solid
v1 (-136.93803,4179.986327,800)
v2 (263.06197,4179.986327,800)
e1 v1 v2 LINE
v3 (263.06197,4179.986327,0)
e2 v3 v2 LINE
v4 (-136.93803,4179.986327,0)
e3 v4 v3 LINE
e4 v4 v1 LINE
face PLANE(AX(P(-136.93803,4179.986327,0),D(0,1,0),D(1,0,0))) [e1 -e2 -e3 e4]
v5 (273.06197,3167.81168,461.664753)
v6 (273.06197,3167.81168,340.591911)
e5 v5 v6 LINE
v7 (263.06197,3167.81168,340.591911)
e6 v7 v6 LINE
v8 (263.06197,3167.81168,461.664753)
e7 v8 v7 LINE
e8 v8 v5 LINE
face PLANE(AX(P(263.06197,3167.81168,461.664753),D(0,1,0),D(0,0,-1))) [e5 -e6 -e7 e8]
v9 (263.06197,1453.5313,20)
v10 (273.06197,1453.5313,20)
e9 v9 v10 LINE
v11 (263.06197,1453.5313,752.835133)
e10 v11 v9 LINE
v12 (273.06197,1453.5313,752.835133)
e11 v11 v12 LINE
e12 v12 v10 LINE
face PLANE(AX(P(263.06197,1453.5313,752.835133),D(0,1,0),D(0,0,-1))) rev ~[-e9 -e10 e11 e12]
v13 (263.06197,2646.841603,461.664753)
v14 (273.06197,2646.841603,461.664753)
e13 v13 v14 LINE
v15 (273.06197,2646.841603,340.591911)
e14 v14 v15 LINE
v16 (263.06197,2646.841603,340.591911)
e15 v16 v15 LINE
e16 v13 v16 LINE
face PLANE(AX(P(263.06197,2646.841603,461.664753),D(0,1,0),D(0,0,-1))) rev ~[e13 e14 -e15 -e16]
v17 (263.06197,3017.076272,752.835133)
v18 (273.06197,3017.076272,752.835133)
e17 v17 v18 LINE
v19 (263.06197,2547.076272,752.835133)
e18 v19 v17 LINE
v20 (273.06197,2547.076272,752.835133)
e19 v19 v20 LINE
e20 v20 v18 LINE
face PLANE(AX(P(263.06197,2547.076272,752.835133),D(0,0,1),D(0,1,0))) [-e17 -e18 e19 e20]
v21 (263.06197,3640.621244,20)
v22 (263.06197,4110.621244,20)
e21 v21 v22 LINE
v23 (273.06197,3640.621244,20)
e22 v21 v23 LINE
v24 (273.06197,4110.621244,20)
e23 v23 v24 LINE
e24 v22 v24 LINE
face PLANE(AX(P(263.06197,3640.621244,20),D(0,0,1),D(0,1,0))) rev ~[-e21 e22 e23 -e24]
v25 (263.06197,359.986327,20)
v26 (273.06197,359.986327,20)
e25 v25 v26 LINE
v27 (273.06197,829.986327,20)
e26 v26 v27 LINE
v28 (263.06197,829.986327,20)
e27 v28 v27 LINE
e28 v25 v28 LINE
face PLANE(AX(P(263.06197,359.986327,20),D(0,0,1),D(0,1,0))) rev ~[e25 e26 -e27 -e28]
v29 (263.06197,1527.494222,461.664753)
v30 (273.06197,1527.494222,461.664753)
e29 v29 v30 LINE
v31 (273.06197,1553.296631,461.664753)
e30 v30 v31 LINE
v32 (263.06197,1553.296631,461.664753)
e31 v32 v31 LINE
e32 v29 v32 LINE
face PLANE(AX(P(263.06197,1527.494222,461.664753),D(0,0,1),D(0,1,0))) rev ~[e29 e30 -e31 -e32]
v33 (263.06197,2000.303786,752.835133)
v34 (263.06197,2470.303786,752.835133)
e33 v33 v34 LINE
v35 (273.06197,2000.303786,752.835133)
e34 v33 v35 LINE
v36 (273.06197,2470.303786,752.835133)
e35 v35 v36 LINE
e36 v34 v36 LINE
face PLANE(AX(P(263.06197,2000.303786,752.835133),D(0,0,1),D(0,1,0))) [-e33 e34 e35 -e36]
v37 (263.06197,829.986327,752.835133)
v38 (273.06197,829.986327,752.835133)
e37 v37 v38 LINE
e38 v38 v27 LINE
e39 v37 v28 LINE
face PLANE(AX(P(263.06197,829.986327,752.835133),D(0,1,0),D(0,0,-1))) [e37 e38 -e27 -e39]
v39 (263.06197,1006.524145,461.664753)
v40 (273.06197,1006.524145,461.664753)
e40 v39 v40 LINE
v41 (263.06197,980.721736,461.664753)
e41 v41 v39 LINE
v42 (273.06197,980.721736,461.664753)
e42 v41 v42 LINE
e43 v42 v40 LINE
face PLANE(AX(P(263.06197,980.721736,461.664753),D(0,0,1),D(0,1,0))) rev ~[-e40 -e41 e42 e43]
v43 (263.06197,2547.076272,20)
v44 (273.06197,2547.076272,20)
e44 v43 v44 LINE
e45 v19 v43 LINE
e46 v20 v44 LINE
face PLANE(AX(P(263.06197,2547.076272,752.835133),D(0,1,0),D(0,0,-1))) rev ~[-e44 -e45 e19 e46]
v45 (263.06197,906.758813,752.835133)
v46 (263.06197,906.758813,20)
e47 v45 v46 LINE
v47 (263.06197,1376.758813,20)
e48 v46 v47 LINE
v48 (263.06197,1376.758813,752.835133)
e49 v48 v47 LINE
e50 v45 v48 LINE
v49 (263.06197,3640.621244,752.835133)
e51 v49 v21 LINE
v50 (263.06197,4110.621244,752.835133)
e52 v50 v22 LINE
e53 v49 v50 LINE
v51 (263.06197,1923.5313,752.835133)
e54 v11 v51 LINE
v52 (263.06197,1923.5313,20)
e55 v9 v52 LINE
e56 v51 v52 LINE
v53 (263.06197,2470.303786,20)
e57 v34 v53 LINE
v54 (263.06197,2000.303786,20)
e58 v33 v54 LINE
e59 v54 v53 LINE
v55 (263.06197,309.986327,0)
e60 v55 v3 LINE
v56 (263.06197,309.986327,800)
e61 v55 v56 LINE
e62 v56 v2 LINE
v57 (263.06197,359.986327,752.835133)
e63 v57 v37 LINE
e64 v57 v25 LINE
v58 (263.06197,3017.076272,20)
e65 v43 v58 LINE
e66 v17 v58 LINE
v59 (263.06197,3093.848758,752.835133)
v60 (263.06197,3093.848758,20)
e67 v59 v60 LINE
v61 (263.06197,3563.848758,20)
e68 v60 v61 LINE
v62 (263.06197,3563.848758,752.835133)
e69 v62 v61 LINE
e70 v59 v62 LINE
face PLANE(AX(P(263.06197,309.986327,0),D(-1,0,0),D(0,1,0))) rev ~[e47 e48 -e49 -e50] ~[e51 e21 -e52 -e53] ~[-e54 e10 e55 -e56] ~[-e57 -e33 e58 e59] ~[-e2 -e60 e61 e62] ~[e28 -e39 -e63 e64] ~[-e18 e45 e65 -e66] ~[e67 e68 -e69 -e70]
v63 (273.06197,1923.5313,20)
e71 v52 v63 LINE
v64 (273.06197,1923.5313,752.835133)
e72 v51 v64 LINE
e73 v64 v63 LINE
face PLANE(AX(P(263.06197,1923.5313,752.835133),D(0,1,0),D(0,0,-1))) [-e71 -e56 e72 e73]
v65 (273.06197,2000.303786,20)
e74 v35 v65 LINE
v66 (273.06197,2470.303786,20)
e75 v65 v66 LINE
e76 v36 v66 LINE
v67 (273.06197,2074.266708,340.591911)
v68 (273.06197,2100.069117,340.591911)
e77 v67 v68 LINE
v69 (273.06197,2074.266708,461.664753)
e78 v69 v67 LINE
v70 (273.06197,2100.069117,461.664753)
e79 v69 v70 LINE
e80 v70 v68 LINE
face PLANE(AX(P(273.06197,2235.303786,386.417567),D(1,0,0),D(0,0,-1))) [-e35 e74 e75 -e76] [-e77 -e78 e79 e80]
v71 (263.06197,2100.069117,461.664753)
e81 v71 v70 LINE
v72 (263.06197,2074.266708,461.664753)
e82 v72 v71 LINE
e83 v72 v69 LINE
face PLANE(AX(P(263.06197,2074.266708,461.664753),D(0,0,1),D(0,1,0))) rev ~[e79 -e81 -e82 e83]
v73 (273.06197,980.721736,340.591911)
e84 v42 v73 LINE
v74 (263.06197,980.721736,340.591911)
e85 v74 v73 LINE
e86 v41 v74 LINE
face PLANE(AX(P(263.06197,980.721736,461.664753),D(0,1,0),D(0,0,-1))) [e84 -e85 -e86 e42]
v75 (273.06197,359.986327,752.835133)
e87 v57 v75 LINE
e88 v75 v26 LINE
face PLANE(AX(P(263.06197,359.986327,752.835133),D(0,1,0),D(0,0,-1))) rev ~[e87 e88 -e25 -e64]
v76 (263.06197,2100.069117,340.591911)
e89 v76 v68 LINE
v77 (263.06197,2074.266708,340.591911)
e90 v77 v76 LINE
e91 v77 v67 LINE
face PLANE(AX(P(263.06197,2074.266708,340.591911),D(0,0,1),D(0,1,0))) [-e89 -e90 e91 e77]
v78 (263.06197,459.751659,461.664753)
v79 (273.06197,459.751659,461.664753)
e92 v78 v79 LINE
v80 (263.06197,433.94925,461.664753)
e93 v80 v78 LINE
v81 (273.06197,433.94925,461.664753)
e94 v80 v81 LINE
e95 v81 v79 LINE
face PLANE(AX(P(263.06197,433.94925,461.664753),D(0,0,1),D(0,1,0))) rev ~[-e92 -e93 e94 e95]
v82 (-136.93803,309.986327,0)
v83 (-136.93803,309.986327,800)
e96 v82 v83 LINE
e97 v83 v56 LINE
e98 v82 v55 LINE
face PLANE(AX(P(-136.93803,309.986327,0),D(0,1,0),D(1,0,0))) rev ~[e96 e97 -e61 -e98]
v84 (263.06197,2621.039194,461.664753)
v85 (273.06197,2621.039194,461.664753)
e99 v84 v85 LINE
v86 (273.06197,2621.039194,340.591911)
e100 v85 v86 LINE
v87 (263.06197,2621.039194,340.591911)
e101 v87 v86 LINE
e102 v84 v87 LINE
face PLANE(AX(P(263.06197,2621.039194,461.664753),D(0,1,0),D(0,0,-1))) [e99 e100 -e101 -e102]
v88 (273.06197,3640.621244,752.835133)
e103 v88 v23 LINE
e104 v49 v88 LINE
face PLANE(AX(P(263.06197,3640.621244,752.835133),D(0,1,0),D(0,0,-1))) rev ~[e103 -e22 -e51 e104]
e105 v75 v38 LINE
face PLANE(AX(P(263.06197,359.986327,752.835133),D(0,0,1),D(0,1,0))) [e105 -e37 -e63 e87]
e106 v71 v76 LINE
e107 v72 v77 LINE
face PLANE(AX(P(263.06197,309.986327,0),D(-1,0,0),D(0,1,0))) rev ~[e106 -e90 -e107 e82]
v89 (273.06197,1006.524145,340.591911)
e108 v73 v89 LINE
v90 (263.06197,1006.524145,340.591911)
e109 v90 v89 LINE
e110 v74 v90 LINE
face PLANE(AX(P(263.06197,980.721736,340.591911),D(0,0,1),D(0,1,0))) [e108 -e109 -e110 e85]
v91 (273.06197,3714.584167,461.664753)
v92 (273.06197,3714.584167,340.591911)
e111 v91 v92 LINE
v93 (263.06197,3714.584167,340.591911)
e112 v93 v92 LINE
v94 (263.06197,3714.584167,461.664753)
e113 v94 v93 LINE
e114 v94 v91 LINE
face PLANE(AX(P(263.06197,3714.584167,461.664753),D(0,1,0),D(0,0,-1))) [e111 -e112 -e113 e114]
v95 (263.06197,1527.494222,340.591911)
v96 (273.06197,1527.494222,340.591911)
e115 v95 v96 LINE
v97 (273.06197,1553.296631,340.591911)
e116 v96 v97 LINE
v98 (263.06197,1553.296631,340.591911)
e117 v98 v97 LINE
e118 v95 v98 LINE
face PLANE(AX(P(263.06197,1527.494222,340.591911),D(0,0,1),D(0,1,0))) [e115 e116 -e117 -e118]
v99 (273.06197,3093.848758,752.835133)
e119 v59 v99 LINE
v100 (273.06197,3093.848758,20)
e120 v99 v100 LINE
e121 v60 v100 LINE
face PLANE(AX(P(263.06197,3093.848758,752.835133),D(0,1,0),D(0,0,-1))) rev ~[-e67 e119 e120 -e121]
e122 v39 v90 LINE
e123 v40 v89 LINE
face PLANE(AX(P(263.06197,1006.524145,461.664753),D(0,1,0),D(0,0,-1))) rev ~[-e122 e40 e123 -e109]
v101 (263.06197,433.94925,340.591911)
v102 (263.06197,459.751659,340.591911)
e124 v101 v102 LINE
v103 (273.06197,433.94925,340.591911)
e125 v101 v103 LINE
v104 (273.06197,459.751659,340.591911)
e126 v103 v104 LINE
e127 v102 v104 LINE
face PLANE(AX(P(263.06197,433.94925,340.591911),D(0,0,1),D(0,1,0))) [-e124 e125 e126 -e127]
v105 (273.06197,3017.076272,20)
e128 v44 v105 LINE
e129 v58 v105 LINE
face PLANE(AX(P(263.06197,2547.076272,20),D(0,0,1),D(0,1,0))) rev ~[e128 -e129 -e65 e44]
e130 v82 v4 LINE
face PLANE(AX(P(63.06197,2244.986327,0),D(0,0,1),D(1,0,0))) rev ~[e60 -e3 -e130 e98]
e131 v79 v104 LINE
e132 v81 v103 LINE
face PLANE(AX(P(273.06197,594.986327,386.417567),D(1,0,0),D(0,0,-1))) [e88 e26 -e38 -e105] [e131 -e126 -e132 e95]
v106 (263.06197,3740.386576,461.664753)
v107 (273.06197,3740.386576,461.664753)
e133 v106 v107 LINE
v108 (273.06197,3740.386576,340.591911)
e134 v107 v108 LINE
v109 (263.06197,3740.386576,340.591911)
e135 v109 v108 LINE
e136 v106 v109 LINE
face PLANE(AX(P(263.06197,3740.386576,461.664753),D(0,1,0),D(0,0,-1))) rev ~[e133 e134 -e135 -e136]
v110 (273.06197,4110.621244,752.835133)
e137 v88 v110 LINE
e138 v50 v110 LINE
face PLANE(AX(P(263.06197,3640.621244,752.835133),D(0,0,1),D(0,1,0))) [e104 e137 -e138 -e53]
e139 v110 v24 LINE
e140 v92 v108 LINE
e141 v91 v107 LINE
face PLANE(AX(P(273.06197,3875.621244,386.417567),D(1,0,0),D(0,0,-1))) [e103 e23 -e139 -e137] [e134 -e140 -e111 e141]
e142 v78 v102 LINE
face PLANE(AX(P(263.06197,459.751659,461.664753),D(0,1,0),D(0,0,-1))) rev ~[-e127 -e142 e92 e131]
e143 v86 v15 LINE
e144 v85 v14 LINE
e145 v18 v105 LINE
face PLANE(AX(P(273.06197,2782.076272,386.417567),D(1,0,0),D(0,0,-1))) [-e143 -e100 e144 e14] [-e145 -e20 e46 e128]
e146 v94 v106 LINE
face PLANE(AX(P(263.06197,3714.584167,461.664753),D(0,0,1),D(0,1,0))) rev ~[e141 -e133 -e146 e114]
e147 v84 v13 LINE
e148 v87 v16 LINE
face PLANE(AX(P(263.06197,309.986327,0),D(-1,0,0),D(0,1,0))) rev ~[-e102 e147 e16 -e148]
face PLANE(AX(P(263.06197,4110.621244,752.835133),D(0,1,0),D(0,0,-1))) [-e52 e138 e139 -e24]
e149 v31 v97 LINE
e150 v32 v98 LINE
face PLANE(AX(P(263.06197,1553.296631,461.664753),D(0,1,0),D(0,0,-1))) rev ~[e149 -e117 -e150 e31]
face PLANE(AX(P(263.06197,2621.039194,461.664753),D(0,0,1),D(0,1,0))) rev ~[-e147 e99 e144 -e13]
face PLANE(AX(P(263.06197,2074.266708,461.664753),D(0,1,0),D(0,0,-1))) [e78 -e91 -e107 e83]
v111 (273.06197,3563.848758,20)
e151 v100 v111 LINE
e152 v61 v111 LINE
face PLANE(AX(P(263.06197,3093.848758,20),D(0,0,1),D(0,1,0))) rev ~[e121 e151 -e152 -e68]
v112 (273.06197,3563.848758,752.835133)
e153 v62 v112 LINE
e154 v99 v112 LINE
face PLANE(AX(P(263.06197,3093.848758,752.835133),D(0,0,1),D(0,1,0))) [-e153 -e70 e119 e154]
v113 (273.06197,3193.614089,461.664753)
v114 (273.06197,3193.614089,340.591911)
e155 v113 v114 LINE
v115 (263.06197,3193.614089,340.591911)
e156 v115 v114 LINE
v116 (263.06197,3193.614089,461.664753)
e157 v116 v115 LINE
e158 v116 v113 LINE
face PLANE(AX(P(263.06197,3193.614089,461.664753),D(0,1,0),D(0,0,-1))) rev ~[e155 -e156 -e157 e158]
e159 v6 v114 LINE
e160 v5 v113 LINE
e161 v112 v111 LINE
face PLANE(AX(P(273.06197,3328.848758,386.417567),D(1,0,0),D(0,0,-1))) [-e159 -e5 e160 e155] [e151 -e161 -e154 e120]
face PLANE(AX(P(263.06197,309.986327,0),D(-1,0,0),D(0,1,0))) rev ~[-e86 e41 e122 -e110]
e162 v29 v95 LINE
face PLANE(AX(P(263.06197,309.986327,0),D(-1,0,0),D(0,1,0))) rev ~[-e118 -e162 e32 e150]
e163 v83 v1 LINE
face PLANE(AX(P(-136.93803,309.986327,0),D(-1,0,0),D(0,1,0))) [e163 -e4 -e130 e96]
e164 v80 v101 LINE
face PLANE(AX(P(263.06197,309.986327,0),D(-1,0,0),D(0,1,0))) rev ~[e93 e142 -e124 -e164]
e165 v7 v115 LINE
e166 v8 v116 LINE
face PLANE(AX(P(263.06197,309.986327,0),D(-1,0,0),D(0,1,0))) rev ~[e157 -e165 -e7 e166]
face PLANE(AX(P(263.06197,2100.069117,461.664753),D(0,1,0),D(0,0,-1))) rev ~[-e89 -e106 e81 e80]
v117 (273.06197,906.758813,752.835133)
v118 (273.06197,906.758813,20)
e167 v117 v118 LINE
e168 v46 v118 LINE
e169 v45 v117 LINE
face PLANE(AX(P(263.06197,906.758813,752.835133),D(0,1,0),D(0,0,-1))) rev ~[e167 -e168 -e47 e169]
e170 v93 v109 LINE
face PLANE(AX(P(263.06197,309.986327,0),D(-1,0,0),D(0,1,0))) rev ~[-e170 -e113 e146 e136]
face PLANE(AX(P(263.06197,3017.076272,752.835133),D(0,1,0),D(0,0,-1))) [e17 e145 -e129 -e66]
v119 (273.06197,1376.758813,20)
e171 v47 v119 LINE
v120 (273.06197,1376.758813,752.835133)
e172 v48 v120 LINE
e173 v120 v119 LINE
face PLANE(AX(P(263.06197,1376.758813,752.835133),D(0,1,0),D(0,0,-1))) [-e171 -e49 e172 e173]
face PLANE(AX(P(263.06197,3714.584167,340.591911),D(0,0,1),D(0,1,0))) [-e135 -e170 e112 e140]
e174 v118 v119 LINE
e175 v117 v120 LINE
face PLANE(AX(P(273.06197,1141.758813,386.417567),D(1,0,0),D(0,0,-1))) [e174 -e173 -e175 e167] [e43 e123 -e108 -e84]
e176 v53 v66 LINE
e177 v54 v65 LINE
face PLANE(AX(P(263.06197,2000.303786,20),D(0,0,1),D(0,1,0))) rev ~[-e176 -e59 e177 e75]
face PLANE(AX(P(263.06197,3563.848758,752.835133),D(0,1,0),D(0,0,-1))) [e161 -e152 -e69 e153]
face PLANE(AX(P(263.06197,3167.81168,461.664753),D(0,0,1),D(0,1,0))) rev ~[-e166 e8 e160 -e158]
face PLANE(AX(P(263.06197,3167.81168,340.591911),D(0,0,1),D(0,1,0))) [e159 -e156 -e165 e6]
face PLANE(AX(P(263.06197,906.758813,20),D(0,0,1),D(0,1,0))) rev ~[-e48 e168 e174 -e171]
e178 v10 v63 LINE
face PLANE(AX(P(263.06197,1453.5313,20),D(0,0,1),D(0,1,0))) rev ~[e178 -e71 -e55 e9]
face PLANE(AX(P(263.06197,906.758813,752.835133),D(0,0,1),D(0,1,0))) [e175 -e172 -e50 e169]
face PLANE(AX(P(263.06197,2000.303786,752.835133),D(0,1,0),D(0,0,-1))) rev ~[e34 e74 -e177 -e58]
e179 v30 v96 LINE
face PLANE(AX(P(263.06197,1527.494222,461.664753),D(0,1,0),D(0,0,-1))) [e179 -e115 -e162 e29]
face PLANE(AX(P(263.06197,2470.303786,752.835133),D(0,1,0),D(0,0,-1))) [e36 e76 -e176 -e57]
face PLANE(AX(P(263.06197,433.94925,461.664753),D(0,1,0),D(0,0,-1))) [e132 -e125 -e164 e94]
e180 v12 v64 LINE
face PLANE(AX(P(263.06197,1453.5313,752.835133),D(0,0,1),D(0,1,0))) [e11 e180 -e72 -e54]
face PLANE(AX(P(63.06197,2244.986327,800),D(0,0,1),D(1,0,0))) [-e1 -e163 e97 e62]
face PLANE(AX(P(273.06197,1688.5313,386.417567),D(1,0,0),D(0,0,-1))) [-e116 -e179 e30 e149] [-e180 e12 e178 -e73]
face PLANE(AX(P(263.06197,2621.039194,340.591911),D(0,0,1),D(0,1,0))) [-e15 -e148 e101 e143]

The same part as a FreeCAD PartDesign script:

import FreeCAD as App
import Part
import Sketcher
from FreeCAD import Vector


def add_polygon(sketch, points):
    """Adds a closed chain of lines whose ends are joined by coincident constraints."""
    first, n = sketch.GeometryCount, len(points)
    for a, b in zip(points, points[1:] + points[:1]):
        sketch.addGeometry(Part.LineSegment(App.Vector(*a, 0), App.Vector(*b, 0)), False)
    for i in range(n):
        sketch.addConstraint(Sketcher.Constraint("Coincident", first + i, 2, first + (i + 1) % n, 1))

doc = App.newDocument("Part")
body = doc.addObject("PartDesign::Body", "Body")

# Sketch on XY plane
sketch1 = body.newObject("Sketcher::SketchObject", "Sketch")
sketch1.AttachmentSupport = (doc.getObject("XY_Plane"), [""])
sketch1.MapMode = "FlatFace"
add_polygon(sketch1, [(-137, 4180), (-137, 310), (263, 310), (263, 4180)])  # lines 0-3
sketch1.addConstraint([
    Sketcher.Constraint("Vertical", 0),
    Sketcher.Constraint("Horizontal", 1),
    Sketcher.Constraint("Vertical", 2),
    Sketcher.Constraint("Horizontal", 3),
    Sketcher.Constraint("DistanceX", 1, 1, 1, 2, 400.0),
    Sketcher.Constraint("DistanceY", 0, 2, 0, 1, 3870.0),
    Sketcher.Constraint("DistanceX", 0, 2, -1, 1, 136.93803),
    Sketcher.Constraint("DistanceY", -1, 1, 0, 2, 309.986327),
])
pad1 = body.newObject("PartDesign::Pad", "Pad")
pad1.Profile = sketch1
pad1.Length = 800

# Sketch on YZ plane
sketch2 = body.newObject("Sketcher::SketchObject", "Sketch001")
sketch2.AttachmentSupport = (doc.getObject("YZ_Plane"), [""])
sketch2.MapMode = "FlatFace"
sketch2.AttachmentOffset = App.Placement(Vector(0, 0, 263.06197), App.Rotation())
add_polygon(sketch2, [(830, 753), (360, 753), (360, 20), (830, 20)])  # lines 0-3
add_polygon(sketch2, [(434, 341), (434, 462), (460, 462), (460, 341)])  # lines 4-7
add_polygon(sketch2, [(1377, 753), (907, 753), (907, 20), (1377, 20)])  # lines 8-11
add_polygon(sketch2, [(981, 341), (981, 462), (1007, 462), (1007, 341)])  # lines 12-15
add_polygon(sketch2, [(1924, 753), (1454, 753), (1454, 20), (1924, 20)])  # lines 16-19
add_polygon(sketch2, [(1527, 341), (1527, 462), (1553, 462), (1553, 341)])  # lines 20-23
add_polygon(sketch2, [(2470, 753), (2000, 753), (2000, 20), (2470, 20)])  # lines 24-27
add_polygon(sketch2, [(2074, 341), (2074, 462), (2100, 462), (2100, 341)])  # lines 28-31
add_polygon(sketch2, [(3017, 753), (2547, 753), (2547, 20), (3017, 20)])  # lines 32-35
add_polygon(sketch2, [(2621, 341), (2621, 462), (2647, 462), (2647, 341)])  # lines 36-39
add_polygon(sketch2, [(3564, 753), (3094, 753), (3094, 20), (3564, 20)])  # lines 40-43
add_polygon(sketch2, [(3168, 341), (3168, 462), (3194, 462), (3194, 341)])  # lines 44-47
add_polygon(sketch2, [(4111, 753), (3641, 753), (3641, 20), (4111, 20)])  # lines 48-51
add_polygon(sketch2, [(3715, 341), (3715, 462), (3740, 462), (3740, 341)])  # lines 52-55
sketch2.addConstraint([
    Sketcher.Constraint("Horizontal", 0),
    Sketcher.Constraint("Vertical", 1),
    Sketcher.Constraint("Horizontal", 2),
    Sketcher.Constraint("Vertical", 3),
    Sketcher.Constraint("Vertical", 4),
    Sketcher.Constraint("Horizontal", 5),
    Sketcher.Constraint("Vertical", 6),
    Sketcher.Constraint("Horizontal", 7),
    Sketcher.Constraint("Horizontal", 8),
    Sketcher.Constraint("Vertical", 9),
    Sketcher.Constraint("Horizontal", 10),
    Sketcher.Constraint("Vertical", 11),
    Sketcher.Constraint("Vertical", 12),
    Sketcher.Constraint("Horizontal", 13),
    Sketcher.Constraint("Vertical", 14),
    Sketcher.Constraint("Horizontal", 15),
    Sketcher.Constraint("Horizontal", 16),
    Sketcher.Constraint("Vertical", 17),
    Sketcher.Constraint("Horizontal", 18),
    Sketcher.Constraint("Vertical", 19),
    Sketcher.Constraint("Vertical", 20),
    Sketcher.Constraint("Horizontal", 21),
    Sketcher.Constraint("Vertical", 22),
    Sketcher.Constraint("Horizontal", 23),
    Sketcher.Constraint("Horizontal", 24),
    Sketcher.Constraint("Vertical", 25),
    Sketcher.Constraint("Horizontal", 26),
    Sketcher.Constraint("Vertical", 27),
    Sketcher.Constraint("Vertical", 28),
    Sketcher.Constraint("Horizontal", 29),
    Sketcher.Constraint("Vertical", 30),
    Sketcher.Constraint("Horizontal", 31),
    Sketcher.Constraint("Horizontal", 32),
    Sketcher.Constraint("Vertical", 33),
    Sketcher.Constraint("Horizontal", 34),
    Sketcher.Constraint("Vertical", 35),
    Sketcher.Constraint("Vertical", 36),
    Sketcher.Constraint("Horizontal", 37),
    Sketcher.Constraint("Vertical", 38),
    Sketcher.Constraint("Horizontal", 39),
    Sketcher.Constraint("Horizontal", 40),
    Sketcher.Constraint("Vertical", 41),
    Sketcher.Constraint("Horizontal", 42),
    Sketcher.Constraint("Vertical", 43),
    Sketcher.Constraint("Vertical", 44),
    Sketcher.Constraint("Horizontal", 45),
    Sketcher.Constraint("Vertical", 46),
    Sketcher.Constraint("Horizontal", 47),
    Sketcher.Constraint("Horizontal", 48),
    Sketcher.Constraint("Vertical", 49),
    Sketcher.Constraint("Horizontal", 50),
    Sketcher.Constraint("Vertical", 51),
    Sketcher.Constraint("Vertical", 52),
    Sketcher.Constraint("Horizontal", 53),
    Sketcher.Constraint("Vertical", 54),
    Sketcher.Constraint("Horizontal", 55),
    Sketcher.Constraint("Horizontal", 3, 2, 8, 2),
    Sketcher.Constraint("Horizontal", 2, 2, 9, 2),
    Sketcher.Constraint("Horizontal", 5, 2, 12, 2),
    Sketcher.Constraint("Horizontal", 7, 2, 14, 2),
    Sketcher.Constraint("Horizontal", 11, 2, 16, 2),
    Sketcher.Constraint("Horizontal", 10, 2, 17, 2),
    Sketcher.Constraint("Horizontal", 13, 2, 20, 2),
    Sketcher.Constraint("Horizontal", 15, 2, 22, 2),
    Sketcher.Constraint("Horizontal", 19, 2, 24, 2),
    Sketcher.Constraint("Horizontal", 18, 2, 25, 2),
    Sketcher.Constraint("Horizontal", 21, 2, 28, 2),
    Sketcher.Constraint("Horizontal", 23, 2, 30, 2),
    Sketcher.Constraint("Horizontal", 27, 2, 32, 2),
    Sketcher.Constraint("Horizontal", 26, 2, 33, 2),
    Sketcher.Constraint("Horizontal", 29, 2, 36, 2),
    Sketcher.Constraint("Horizontal", 31, 2, 38, 2),
    Sketcher.Constraint("Horizontal", 35, 2, 40, 2),
    Sketcher.Constraint("Horizontal", 34, 2, 41, 2),
    Sketcher.Constraint("Horizontal", 37, 2, 44, 2),
    Sketcher.Constraint("Horizontal", 39, 2, 46, 2),
    Sketcher.Constraint("Horizontal", 43, 2, 48, 2),
    Sketcher.Constraint("Horizontal", 42, 2, 49, 2),
    Sketcher.Constraint("Horizontal", 45, 2, 52, 2),
    Sketcher.Constraint("Horizontal", 47, 2, 54, 2),
    Sketcher.Constraint("Equal", 2, 8),
    Sketcher.Constraint("Equal", 7, 13),
    Sketcher.Constraint("Equal", 10, 16),
    Sketcher.Constraint("Equal", 15, 21),
    Sketcher.Constraint("Equal", 18, 24),
    Sketcher.Constraint("Equal", 23, 29),
    Sketcher.Constraint("Equal", 26, 32),
    Sketcher.Constraint("Equal", 31, 37),
    Sketcher.Constraint("Equal", 34, 40),
    Sketcher.Constraint("Equal", 39, 45),
    Sketcher.Constraint("Equal", 42, 48),
    Sketcher.Constraint("Equal", 47, 53),
    Sketcher.Constraint("DistanceX", 0, 2, 0, 1, 470.0),
    Sketcher.Constraint("DistanceY", -1, 1, 1, 2, 20.0),
    Sketcher.Constraint("DistanceX", 5, 1, 5, 2, 25.802409),
    Sketcher.Constraint("DistanceY", 4, 1, 4, 2, 121.072842),
    Sketcher.Constraint("DistanceX", -1, 1, 16, 2, 1453.5313),
    Sketcher.Constraint("DistanceY", 1, 2, 1, 1, 732.835133),
    Sketcher.Constraint("DistanceX", -1, 1, 4, 2, 433.94925),
    Sketcher.Constraint("DistanceY", -1, 1, 6, 2, 340.591911),
    Sketcher.Constraint("DistanceX", -1, 1, 21, 2, 1553.296631),
    Sketcher.Constraint("DistanceX", -1, 1, 28, 2, 2074.266708),
    Sketcher.Constraint("DistanceX", -1, 1, 32, 2, 2547.076272),
    Sketcher.Constraint("DistanceX", -1, 1, 40, 2, 3093.848758),
    Sketcher.Constraint("DistanceX", -1, 1, 44, 2, 3167.81168),
    Sketcher.Constraint("DistanceX", 0, 2, 5, 2, 99.765331),
    Sketcher.Constraint("DistanceX", 3, 2, 12, 2, 150.735409),
    Sketcher.Constraint("DistanceX", 8, 2, 13, 2, 99.765331),
    Sketcher.Constraint("DistanceX", 24, 2, 29, 2, 99.765331),
    Sketcher.Constraint("DistanceX", 27, 2, 36, 2, 150.735409),
    Sketcher.Constraint("DistanceX", 43, 2, 52, 2, 150.735409),
    Sketcher.Constraint("DistanceX", 48, 2, 53, 2, 99.765331),
])
pad2 = body.newObject("PartDesign::Pad", "Pad001")
pad2.Profile = sketch2
pad2.Length = 10

doc.recompute()
